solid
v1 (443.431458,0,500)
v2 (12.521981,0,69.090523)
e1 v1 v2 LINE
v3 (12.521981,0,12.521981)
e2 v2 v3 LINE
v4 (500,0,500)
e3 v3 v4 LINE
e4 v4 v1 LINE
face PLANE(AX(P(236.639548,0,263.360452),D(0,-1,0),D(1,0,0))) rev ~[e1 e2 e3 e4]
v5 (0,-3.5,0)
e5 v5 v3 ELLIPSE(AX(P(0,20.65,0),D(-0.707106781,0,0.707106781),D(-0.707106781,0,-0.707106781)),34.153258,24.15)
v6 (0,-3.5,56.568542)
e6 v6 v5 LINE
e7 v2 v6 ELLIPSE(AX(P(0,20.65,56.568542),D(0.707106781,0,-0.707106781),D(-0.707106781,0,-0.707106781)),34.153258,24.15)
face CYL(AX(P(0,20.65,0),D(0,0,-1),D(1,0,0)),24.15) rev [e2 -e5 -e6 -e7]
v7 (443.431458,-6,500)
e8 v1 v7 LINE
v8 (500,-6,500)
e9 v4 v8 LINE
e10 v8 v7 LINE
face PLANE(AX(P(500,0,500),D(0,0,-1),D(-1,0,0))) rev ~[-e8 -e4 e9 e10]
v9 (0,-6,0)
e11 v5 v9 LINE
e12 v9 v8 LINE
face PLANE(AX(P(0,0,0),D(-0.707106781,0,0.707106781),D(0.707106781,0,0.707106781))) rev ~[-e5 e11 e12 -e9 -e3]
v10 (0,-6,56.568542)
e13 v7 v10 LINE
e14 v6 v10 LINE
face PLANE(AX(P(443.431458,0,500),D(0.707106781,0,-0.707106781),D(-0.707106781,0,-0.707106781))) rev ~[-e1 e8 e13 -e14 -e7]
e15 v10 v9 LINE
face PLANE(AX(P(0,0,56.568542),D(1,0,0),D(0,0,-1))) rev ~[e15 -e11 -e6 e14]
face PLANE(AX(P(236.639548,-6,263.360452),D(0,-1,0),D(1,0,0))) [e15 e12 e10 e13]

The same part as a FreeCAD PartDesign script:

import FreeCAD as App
import Part
import Sketcher

V = App.Vector


def add_polygon(sketch, points):
    """Adds a closed chain of lines whose ends are joined by coincident constraints."""
    first, n = sketch.GeometryCount, len(points)
    for a, b in zip(points, points[1:] + points[:1]):
        sketch.addGeometry(Part.LineSegment(App.Vector(*a, 0), App.Vector(*b, 0)), False)
    for i in range(n):
        sketch.addConstraint(Sketcher.Constraint("Coincident", first + i, 2, first + (i + 1) % n, 1))

doc = App.newDocument("Part")
body = doc.addObject("PartDesign::Body", "Body")

# Sketch on XZ plane
sketch1 = doc.addObject("Sketcher::SketchObject", "Sketch")
body.addObject(sketch1)
sketch1.AttachmentSupport = (doc.XZ_Plane, [""])
sketch1.MapMode = "FlatFace"
add_polygon(sketch1, [(0, 57), (0, 0), (500, 500), (443, 500)])  # lines 0-3
sketch1.addConstraint([
    Sketcher.Constraint("Vertical", 0),
    Sketcher.Constraint("Horizontal", 2),
    Sketcher.Constraint("Coincident", 0, 2, -1, 1),
    Sketcher.Constraint("Parallel", 1, 3),
    Sketcher.Constraint("Equal", 2, 0),
    Sketcher.Constraint("DistanceX", -1, 1, 1, 2, 500.0),
    Sketcher.Constraint("DistanceX", 2, 2, 2, 1, 56.568542),
])
pad1 = doc.addObject("PartDesign::Pad", "Pad")
body.addObject(pad1)
pad1.Profile = sketch1
pad1.Length = 6

# Sketch on XY plane
sketch2 = doc.addObject("Sketcher::SketchObject", "Sketch001")
body.addObject(sketch2)
sketch2.AttachmentSupport = (doc.XY_Plane, [""])
sketch2.MapMode = "FlatFace"
sketch2.addGeometry(Part.Circle(V(0, 21, 0), V(0, 0, 1), 24), False)
sketch2.addConstraint([
    Sketcher.Constraint("PointOnObject", 0, 3, -2),
    Sketcher.Constraint("Diameter", 0, 48.3),
    Sketcher.Constraint("DistanceY", -1, 1, 0, 3, 20.65),
])
pocket1 = doc.addObject("PartDesign::Pocket", "Pocket")
body.addObject(pocket1)
pocket1.Profile = sketch2
pocket1.Type = "ThroughAll"
pocket1.Reversed = True

doc.recompute()
